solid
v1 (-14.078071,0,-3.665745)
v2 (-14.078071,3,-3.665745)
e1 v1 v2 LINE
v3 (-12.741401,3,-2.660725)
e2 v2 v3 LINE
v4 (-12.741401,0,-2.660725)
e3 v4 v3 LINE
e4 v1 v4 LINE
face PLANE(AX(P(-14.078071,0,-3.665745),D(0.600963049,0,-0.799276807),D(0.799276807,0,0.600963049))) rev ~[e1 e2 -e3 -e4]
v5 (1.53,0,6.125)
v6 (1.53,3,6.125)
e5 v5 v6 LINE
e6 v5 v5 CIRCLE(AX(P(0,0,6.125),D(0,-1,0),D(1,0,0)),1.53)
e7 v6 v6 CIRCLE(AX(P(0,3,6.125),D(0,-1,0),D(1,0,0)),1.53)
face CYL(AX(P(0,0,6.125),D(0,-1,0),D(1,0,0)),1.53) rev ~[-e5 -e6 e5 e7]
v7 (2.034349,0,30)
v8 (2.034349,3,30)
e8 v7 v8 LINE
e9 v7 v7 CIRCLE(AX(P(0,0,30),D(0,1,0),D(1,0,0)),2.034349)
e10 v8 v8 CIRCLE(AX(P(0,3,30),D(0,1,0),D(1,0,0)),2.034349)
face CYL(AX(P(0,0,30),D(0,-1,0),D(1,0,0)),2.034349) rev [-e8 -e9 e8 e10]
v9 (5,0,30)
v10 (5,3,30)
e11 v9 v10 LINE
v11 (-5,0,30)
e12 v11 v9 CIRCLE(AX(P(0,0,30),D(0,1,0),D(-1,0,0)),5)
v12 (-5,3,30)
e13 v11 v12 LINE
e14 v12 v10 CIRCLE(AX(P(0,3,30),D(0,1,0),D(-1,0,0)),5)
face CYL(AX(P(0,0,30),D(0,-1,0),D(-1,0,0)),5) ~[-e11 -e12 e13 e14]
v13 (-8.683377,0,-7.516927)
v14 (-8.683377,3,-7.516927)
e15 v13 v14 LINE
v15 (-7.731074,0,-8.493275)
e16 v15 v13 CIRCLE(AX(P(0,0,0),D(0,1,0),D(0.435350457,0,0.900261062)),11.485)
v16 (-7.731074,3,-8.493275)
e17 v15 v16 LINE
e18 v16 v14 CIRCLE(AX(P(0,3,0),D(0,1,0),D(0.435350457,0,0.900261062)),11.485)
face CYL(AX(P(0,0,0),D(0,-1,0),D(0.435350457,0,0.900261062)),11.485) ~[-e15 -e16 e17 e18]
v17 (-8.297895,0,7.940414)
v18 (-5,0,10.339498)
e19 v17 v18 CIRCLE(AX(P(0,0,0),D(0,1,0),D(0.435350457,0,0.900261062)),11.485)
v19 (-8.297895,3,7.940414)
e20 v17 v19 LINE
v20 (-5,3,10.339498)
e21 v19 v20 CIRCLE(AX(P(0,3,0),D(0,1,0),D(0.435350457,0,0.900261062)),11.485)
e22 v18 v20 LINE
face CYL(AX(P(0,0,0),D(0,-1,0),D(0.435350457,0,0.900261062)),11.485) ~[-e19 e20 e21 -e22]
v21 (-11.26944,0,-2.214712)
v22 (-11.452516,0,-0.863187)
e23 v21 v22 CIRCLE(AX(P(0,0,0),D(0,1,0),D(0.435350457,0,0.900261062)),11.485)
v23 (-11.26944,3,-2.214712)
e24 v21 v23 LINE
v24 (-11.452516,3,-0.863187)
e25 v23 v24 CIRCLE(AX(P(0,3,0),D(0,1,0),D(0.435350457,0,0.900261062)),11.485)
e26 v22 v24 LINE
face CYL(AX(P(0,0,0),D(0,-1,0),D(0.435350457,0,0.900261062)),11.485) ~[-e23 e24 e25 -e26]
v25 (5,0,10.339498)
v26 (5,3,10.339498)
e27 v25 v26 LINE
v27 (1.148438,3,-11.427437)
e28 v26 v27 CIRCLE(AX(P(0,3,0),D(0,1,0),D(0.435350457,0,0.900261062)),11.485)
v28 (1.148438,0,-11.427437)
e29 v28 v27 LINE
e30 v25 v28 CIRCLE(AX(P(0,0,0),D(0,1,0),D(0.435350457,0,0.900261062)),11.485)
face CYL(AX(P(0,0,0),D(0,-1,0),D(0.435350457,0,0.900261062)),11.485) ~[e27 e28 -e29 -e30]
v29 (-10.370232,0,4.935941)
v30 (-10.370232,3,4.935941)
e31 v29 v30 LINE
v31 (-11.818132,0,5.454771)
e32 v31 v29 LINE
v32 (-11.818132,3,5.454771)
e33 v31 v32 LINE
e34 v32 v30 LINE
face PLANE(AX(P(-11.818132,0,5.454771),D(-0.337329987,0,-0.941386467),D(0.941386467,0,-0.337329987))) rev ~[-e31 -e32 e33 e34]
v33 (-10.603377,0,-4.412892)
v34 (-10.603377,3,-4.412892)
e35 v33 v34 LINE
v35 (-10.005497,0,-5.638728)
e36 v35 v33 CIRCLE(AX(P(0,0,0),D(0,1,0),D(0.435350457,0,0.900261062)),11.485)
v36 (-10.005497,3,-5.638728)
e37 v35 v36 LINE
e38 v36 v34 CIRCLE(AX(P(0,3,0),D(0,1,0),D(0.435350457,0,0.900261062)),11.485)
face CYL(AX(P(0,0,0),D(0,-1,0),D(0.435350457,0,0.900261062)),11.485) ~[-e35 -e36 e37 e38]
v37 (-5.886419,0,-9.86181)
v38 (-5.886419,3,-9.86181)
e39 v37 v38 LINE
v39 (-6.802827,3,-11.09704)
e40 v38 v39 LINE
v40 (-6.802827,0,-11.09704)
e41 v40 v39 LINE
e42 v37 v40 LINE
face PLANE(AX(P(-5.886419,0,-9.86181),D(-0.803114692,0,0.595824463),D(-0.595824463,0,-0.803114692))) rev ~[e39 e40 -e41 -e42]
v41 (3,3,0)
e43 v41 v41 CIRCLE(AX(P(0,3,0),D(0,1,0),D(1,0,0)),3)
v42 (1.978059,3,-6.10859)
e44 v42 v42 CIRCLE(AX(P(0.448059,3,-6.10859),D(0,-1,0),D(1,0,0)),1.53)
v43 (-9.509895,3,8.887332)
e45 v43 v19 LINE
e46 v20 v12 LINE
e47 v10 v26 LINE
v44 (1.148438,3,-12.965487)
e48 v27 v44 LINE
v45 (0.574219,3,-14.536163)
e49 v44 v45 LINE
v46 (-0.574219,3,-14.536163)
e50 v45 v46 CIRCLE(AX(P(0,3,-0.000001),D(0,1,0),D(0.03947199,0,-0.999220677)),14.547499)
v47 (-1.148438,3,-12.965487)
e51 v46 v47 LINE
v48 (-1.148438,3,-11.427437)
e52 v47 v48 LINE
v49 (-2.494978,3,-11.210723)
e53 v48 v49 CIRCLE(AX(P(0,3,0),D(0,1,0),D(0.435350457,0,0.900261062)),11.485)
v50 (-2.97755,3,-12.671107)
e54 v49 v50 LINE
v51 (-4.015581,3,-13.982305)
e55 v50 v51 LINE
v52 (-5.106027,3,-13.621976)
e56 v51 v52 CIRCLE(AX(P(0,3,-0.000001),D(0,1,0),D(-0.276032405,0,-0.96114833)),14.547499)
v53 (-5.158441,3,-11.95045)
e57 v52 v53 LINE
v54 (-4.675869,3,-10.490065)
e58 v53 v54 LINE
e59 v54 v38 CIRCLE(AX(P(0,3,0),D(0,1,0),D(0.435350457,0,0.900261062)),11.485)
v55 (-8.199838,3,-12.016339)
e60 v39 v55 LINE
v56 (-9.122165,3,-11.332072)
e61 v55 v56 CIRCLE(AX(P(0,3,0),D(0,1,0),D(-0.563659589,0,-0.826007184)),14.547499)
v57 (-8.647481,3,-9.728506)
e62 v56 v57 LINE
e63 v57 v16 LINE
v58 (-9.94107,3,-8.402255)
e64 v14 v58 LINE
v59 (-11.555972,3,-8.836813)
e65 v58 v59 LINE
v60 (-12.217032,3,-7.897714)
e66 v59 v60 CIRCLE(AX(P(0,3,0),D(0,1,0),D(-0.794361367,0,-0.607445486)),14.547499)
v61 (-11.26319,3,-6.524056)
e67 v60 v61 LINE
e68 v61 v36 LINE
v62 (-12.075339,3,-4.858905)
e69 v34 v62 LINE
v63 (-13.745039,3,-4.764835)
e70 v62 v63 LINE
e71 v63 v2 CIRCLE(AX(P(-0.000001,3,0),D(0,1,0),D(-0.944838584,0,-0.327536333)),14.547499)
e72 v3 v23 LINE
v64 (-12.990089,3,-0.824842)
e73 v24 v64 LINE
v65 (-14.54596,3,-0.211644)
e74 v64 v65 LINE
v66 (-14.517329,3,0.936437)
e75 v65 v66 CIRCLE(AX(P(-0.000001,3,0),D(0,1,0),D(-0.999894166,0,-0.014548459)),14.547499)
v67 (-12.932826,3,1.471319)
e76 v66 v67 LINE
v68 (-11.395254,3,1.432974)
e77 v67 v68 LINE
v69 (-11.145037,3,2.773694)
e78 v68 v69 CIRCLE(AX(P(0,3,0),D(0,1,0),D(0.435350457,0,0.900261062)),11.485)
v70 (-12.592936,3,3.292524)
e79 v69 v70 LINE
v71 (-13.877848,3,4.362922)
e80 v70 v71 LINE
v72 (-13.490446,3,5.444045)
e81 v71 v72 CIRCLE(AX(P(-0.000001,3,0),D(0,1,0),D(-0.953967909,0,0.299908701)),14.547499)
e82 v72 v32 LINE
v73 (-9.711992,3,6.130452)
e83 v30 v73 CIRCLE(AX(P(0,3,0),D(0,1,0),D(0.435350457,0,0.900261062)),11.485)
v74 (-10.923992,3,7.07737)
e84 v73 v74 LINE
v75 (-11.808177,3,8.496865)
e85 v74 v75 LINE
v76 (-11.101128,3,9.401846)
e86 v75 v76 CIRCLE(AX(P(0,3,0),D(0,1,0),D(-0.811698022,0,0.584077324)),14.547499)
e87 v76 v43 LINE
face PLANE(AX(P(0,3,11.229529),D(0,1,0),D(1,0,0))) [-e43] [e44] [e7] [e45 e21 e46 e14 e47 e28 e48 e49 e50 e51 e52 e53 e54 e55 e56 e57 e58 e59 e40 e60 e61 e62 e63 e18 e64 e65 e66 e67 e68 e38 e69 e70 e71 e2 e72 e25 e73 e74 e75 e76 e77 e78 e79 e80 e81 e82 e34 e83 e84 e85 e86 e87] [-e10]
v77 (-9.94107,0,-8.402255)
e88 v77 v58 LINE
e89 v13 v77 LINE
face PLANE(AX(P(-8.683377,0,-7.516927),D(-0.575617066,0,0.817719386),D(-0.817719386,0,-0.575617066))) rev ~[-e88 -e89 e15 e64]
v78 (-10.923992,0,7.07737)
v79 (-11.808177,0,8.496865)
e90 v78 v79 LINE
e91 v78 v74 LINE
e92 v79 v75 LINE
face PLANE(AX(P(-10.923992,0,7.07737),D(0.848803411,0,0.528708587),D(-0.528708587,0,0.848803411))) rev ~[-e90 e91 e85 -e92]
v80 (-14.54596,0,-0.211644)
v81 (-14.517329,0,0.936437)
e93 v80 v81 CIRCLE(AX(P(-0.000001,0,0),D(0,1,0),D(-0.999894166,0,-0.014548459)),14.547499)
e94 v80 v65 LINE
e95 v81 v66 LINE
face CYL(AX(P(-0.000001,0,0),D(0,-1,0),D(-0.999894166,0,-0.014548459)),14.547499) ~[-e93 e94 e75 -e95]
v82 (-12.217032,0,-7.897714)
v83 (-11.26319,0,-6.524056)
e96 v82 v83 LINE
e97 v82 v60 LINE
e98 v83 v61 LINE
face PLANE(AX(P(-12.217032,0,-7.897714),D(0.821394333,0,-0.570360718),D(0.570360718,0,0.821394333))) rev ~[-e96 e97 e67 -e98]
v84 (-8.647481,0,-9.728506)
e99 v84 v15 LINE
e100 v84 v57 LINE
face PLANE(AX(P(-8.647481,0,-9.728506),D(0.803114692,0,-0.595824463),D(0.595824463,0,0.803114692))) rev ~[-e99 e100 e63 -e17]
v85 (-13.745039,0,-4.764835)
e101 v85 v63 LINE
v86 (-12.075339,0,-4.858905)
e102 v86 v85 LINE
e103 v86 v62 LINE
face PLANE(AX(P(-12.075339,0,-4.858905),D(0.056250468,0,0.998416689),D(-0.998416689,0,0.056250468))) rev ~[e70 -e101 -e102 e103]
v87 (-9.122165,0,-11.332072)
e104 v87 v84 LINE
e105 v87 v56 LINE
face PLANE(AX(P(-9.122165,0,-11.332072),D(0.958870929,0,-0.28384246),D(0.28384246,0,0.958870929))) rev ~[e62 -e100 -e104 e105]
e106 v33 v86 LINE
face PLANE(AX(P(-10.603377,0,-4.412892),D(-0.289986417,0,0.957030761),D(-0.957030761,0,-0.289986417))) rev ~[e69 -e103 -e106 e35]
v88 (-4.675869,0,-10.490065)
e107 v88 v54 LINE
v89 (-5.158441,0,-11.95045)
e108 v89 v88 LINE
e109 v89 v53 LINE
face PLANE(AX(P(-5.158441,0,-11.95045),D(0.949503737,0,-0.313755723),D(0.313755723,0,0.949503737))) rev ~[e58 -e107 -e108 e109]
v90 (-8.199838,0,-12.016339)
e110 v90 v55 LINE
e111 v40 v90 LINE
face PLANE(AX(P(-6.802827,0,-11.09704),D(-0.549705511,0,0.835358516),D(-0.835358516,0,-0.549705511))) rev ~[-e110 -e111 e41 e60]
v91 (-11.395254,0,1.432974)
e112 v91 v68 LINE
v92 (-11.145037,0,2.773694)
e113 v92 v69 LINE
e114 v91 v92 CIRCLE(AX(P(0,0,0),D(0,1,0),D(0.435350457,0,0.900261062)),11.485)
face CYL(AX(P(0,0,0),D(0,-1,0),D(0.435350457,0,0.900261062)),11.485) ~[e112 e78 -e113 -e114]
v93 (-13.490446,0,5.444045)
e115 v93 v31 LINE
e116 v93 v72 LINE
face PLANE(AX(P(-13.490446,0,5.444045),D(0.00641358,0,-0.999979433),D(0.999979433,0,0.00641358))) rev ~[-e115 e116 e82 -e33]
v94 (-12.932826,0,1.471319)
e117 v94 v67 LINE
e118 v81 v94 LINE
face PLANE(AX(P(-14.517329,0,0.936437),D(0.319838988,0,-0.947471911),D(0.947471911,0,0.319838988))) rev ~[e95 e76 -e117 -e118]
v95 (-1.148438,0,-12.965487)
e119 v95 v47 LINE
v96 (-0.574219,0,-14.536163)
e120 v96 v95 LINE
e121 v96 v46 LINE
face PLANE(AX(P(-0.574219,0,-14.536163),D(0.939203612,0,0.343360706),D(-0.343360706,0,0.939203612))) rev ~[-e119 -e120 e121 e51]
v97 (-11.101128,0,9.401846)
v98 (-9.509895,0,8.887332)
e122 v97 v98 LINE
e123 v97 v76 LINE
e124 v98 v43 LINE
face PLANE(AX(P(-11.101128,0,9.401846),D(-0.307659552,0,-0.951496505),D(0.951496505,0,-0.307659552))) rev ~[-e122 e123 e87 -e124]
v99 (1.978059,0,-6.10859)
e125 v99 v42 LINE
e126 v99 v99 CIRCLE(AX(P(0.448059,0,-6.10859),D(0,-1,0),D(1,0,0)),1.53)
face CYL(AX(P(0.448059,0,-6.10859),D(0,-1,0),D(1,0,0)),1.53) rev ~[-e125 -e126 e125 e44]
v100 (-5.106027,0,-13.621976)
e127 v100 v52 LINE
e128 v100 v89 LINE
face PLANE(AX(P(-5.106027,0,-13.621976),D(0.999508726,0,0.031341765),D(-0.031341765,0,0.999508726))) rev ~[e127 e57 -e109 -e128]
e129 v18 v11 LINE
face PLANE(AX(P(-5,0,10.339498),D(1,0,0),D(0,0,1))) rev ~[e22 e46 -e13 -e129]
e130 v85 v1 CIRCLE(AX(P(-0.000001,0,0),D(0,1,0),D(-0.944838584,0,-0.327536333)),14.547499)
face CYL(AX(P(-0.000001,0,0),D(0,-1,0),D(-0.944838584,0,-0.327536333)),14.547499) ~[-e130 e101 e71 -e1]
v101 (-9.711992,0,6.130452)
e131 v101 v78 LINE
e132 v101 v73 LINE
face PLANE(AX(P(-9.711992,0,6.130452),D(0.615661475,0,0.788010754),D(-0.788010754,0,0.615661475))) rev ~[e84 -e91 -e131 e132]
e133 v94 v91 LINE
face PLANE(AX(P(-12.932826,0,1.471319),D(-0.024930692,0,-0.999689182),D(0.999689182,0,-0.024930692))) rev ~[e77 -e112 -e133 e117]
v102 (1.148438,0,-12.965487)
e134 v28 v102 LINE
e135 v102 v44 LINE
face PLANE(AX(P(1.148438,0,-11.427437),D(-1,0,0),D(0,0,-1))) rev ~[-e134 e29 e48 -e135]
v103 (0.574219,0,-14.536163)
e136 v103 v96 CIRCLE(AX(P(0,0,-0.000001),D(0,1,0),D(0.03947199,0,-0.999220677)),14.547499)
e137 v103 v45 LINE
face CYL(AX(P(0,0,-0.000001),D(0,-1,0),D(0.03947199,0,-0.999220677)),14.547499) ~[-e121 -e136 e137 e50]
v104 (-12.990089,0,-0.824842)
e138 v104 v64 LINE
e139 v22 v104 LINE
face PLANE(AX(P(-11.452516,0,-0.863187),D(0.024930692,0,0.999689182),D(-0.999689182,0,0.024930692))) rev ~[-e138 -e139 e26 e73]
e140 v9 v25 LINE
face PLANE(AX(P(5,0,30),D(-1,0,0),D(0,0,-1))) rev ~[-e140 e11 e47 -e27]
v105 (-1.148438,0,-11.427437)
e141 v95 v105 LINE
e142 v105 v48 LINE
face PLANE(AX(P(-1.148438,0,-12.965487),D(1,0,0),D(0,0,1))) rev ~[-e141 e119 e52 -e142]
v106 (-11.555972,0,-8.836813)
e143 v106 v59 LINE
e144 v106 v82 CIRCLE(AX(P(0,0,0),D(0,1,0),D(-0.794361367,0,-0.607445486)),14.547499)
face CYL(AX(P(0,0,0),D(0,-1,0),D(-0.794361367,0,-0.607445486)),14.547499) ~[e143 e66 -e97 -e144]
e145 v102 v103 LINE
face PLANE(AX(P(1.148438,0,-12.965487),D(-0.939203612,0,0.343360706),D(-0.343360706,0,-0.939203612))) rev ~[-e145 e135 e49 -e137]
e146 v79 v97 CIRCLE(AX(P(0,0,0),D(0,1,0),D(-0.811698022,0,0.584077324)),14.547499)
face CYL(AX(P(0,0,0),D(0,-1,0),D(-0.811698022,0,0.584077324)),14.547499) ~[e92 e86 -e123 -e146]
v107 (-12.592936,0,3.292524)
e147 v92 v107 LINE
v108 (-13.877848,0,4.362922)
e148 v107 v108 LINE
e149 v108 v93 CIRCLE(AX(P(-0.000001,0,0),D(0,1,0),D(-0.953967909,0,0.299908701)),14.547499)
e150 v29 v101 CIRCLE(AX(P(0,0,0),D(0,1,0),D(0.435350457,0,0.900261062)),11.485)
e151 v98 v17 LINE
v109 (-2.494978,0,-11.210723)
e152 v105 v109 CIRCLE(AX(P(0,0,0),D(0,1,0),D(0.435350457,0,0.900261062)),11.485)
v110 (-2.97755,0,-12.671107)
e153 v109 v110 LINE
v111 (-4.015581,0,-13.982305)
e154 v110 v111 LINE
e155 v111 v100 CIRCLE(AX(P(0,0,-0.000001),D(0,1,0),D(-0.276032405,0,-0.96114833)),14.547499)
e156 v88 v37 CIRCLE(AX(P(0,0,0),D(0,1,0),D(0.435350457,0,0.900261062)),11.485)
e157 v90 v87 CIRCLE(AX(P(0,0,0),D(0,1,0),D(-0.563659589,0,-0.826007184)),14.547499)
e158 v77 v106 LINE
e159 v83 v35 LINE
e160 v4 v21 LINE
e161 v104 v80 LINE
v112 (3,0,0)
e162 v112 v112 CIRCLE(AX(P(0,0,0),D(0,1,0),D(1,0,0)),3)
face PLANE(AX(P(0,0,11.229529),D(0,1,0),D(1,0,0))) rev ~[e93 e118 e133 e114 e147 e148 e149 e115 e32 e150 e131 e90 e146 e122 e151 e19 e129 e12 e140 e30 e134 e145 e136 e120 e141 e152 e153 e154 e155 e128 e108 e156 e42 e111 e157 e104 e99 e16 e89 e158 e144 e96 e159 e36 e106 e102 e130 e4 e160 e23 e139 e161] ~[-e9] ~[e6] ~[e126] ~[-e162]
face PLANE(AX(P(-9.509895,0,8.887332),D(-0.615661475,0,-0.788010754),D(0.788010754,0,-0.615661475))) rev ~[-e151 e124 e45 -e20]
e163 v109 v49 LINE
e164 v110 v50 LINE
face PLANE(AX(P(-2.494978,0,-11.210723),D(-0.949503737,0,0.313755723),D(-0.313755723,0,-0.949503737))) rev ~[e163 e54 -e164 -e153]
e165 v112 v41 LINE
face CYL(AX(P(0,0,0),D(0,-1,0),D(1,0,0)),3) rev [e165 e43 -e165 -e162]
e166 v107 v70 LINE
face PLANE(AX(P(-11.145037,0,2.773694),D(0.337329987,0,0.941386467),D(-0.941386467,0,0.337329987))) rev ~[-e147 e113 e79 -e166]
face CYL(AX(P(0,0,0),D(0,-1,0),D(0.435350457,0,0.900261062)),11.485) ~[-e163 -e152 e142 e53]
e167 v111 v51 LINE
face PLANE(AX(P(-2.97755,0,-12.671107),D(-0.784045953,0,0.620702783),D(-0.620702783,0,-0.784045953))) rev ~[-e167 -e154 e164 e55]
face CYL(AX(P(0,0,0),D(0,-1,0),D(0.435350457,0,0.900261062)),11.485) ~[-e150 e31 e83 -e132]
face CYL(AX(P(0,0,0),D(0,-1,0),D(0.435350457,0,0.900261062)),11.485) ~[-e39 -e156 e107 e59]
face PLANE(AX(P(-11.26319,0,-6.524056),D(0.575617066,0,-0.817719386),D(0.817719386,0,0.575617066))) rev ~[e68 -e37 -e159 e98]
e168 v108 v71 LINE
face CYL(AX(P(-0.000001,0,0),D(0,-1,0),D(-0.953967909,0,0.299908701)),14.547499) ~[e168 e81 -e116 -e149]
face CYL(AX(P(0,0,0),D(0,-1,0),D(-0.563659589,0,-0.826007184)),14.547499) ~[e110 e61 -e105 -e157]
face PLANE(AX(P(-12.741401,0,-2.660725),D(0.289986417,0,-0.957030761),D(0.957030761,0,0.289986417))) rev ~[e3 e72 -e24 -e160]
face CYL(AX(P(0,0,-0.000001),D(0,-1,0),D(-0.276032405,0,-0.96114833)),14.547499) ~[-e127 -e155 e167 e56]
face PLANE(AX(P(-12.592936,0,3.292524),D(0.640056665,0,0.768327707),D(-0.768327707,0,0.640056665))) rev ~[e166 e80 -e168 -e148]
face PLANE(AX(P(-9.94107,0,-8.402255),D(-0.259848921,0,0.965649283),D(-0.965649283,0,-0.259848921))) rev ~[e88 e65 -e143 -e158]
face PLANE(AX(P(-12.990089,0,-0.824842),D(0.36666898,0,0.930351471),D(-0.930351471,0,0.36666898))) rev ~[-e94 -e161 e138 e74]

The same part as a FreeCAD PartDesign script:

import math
import FreeCAD as App
import Part
import Sketcher
from FreeCAD import Vector

doc = App.newDocument("Part")
body = doc.addObject("PartDesign::Body", "Body")

# Sketch on XZ plane
sketch1 = doc.addObject("Sketcher::SketchObject", "Sketch")
body.addObject(sketch1)
sketch1.AttachmentSupport = (doc.XZ_Plane, [""])
sketch1.MapMode = "FlatFace"
sketch1.addGeometry([
    Part.LineSegment(Vector(-5, 10.3, 0), Vector(-5, 30, 0)),  # 0
    Part.ArcOfCircle(Part.Circle(Vector(0, 30, 0), Vector(0, 0, 1), 5), math.radians(0), math.radians(180)),  # 1
    Part.LineSegment(Vector(5, 30, 0), Vector(5, 10.3, 0)),  # 2
    Part.ArcOfCircle(Part.Circle(Vector(0, 0, 0), Vector(0, 0, 1), 11.5), math.radians(116), math.radians(424)),  # 3
    Part.Circle(Vector(0, 30, 0), Vector(0, 0, 1), 2),  # 4
    Part.Circle(Vector(0, 0, 0), Vector(0, 0, 1), 3),  # 5
], False)
sketch1.addConstraint([
    Sketcher.Constraint("Tangent", 0, 2, 1, 2),
    Sketcher.Constraint("Tangent", 1, 1, 2, 1),
    Sketcher.Constraint("Coincident", 2, 2, 3, 2),
    Sketcher.Constraint("Coincident", 3, 1, 0, 1),
    Sketcher.Constraint("Vertical", 0),
    Sketcher.Constraint("Vertical", 2),
    Sketcher.Constraint("Coincident", 3, 3, -1, 1),
    Sketcher.Constraint("Coincident", 5, 3, -1, 1),
    Sketcher.Constraint("Coincident", 4, 3, 1, 3),
    Sketcher.Constraint("PointOnObject", 1, 3, -2),
    Sketcher.Constraint("Diameter", 5, 6.0),
    Sketcher.Constraint("Radius", 1, 5.0),
    Sketcher.Constraint("DistanceY", -1, 1, 1, 3, 30.0),
    Sketcher.Constraint("Radius", 3, 11.485),
    Sketcher.Constraint("Diameter", 4, 4.068697),
])
pad1 = doc.addObject("PartDesign::Pad", "Pad")
body.addObject(pad1)
pad1.Profile = sketch1
pad1.Length = 3
pad1.Reversed = True

# Sketch on XZ plane
sketch2 = doc.addObject("Sketcher::SketchObject", "Sketch001")
body.addObject(sketch2)
sketch2.AttachmentSupport = (doc.XZ_Plane, [""])
sketch2.MapMode = "FlatFace"
sketch2.addGeometry([
    Part.LineSegment(Vector(-1.1, -13, 0), Vector(-1.1, -11.4, 0)),  # 0
    Part.ArcOfCircle(Part.Circle(Vector(0, 0, 0), Vector(0, 0, 1), 11.5), math.radians(-95.74), math.radians(-84.26)),  # 1
    Part.LineSegment(Vector(1.1, -11.4, 0), Vector(1.1, -13, 0)),  # 2
    Part.LineSegment(Vector(1.1, -13, 0), Vector(0.6, -14.5, 0)),  # 3
    Part.ArcOfCircle(Part.Circle(Vector(0, 0, 0), Vector(0, 0, 1), 14.5), math.radians(-92.26), math.radians(-87.74)),  # 4
    Part.LineSegment(Vector(-0.6, -14.5, 0), Vector(-1.1, -13, 0)),  # 5
], False)
sketch2.addConstraint([
    Sketcher.Constraint("Coincident", 0, 2, 1, 1),
    Sketcher.Constraint("Coincident", 1, 2, 2, 1),
    Sketcher.Constraint("Coincident", 2, 2, 3, 1),
    Sketcher.Constraint("Coincident", 3, 2, 4, 2),
    Sketcher.Constraint("Coincident", 4, 1, 5, 1),
    Sketcher.Constraint("Coincident", 5, 2, 0, 1),
    Sketcher.Constraint("Vertical", 0),
    Sketcher.Constraint("Vertical", 2),
    Sketcher.Constraint("Coincident", 1, 3, -1, 1),
    Sketcher.Constraint("Coincident", 4, 3, -1, 1),
    Sketcher.Constraint("Symmetric", 2, 2, 5, 2, -2),
    Sketcher.Constraint("Horizontal", 3, 2, 4, 1),
    Sketcher.Constraint("Radius", 1, 11.485),
    Sketcher.Constraint("Radius", 4, 14.547499),
    Sketcher.Constraint("DistanceY", 0, 1, 0, 2, 1.53805),
    Sketcher.Constraint("Distance", 3, 1.672348),
    Sketcher.Constraint("DistanceX", -1, 1, 3, 2, 0.574219),
])
pad2 = doc.addObject("PartDesign::Pad", "Pad001")
body.addObject(pad2)
pad2.Profile = sketch2
pad2.Length = 3
pad2.Reversed = True
doc.recompute()

polarpattern = doc.addObject("PartDesign::PolarPattern", "PolarPattern")
body.addObject(polarpattern)
polarpattern.Originals = [pad2]
polarpattern.Axis = (doc.Y_Axis, [""])
polarpattern.Angle = 128
polarpattern.Occurrences = 8
body.Tip = polarpattern

# Sketch on XZ plane
sketch3 = doc.addObject("Sketcher::SketchObject", "Sketch002")
body.addObject(sketch3)
sketch3.AttachmentSupport = (doc.XZ_Plane, [""])
sketch3.MapMode = "FlatFace"
sketch3.addGeometry([
    Part.Circle(Vector(0.4, -6.1, 0), Vector(0, 0, 1), 1.5),
    Part.Circle(Vector(0, 6.1, 0), Vector(0, 0, 1), 1.5),
], False)
sketch3.addConstraint([
    Sketcher.Constraint("Equal", 0, 1),
    Sketcher.Constraint("PointOnObject", 1, 3, -2),
    Sketcher.Constraint("Diameter", 0, 3.06),
    Sketcher.Constraint("DistanceY", -1, 1, 1, 3, 6.125),
    Sketcher.Constraint("DistanceX", -1, 1, 0, 3, 0.448059),
    Sketcher.Constraint("DistanceY", 0, 3, -1, 1, 6.10859),
])
pocket1 = doc.addObject("PartDesign::Pocket", "Pocket")
body.addObject(pocket1)
pocket1.Profile = sketch3
pocket1.Length = 10

doc.recompute()
